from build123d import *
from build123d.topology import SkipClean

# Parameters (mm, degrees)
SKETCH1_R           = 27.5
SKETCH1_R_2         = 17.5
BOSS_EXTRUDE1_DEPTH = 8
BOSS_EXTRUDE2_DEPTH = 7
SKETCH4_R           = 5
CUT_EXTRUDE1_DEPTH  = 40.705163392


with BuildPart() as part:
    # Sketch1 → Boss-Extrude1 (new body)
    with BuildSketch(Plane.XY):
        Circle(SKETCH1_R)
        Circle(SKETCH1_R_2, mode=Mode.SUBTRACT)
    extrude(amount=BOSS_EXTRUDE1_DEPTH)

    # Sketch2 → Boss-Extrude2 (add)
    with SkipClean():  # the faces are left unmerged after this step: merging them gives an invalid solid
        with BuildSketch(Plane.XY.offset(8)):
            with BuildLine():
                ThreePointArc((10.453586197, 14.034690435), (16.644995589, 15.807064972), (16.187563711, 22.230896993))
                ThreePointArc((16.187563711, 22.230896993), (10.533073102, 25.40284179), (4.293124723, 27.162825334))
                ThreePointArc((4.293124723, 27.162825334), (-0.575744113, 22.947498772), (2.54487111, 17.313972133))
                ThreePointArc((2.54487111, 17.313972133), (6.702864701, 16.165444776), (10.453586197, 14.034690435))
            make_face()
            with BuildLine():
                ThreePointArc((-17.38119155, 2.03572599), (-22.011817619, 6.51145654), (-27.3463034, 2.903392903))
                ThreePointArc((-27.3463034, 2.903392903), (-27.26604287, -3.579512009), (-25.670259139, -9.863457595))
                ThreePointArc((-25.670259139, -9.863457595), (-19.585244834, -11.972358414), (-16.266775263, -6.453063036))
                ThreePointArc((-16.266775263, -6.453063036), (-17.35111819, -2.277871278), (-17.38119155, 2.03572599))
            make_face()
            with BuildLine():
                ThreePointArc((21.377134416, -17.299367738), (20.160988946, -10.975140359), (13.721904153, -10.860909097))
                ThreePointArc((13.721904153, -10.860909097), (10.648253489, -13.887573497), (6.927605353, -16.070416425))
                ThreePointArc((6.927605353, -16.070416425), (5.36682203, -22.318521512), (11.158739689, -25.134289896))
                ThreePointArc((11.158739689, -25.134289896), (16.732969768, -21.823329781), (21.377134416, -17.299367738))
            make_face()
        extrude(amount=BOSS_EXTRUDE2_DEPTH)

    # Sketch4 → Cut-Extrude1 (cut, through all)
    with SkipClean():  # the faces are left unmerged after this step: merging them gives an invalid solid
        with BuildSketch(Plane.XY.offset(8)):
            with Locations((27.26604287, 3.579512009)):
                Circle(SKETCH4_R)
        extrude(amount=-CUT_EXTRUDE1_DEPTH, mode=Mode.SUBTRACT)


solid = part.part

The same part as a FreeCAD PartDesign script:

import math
import FreeCAD as App
import Part
import Sketcher

V = App.Vector

doc = App.newDocument("Part")
body = doc.addObject("PartDesign::Body", "Body")

# Sketch on XY plane
sketch1 = body.newObject("Sketcher::SketchObject", "Sketch")
sketch1.AttachmentSupport = (doc.getObject("XY_Plane"), [""])
sketch1.MapMode = "FlatFace"
sketch1.addGeometry([
    Part.Circle(V(0, 0, 0), V(0, 0, 1), 28),
    Part.Circle(V(0, 0, 0), V(0, 0, 1), 18),
], False)
sketch1.addConstraint([
    Sketcher.Constraint("Coincident", 0, 3, -1, 1),
    Sketcher.Constraint("Coincident", 1, 3, -1, 1),
    Sketcher.Constraint("Diameter", 0, 55.0),
    Sketcher.Constraint("Diameter", 1, 35.0),
])
pad1 = body.newObject("PartDesign::Pad", "Pad")
pad1.Profile = sketch1
pad1.Length = 8

# Sketch on XY plane
sketch2 = body.newObject("Sketcher::SketchObject", "Sketch001")
sketch2.AttachmentSupport = (doc.getObject("XY_Plane"), [""])
sketch2.MapMode = "FlatFace"
sketch2.AttachmentOffset = App.Placement(V(0, 0, 8), App.Rotation())
sketch2.addGeometry([
    Part.ArcOfCircle(Part.Circle(V(12, 19, 0), V(0, 0, 1), 5), math.radians(-113), math.radians(43)),  # 0
    Part.ArcOfCircle(Part.Circle(V(0, 0, 0), V(0, 0, 1), 28), math.radians(54), math.radians(81)),  # 1
    Part.ArcOfCircle(Part.Circle(V(4, 22, 0), V(0, 0, 1), 5), math.radians(92), math.radians(248)),  # 2
    Part.ArcOfCircle(Part.Circle(V(0, 0, 0), V(0, 0, 1), 17), math.radians(53), math.radians(82)),  # 3
    Part.ArcOfCircle(Part.Circle(V(-22, 1, 0), V(0, 0, 1), 5), math.radians(7), math.radians(163)),  # 4
    Part.ArcOfCircle(Part.Circle(V(0, 0, 0), V(0, 0, 1), 27), math.radians(174), math.radians(201)),  # 5
    Part.ArcOfCircle(Part.Circle(V(-21, -7, 0), V(0, 0, 1), 5), math.radians(-148), math.radians(8)),  # 6
    Part.ArcOfCircle(Part.Circle(V(0, 0, 0), V(0, 0, 1), 18), math.radians(173), math.radians(202)),  # 7
    Part.ArcOfCircle(Part.Circle(V(17, -15, 0), V(0, 0, 1), 5), math.radians(-28), math.radians(128)),  # 8
    Part.ArcOfCircle(Part.Circle(V(0, 0, 0), V(0, 0, 1), 17), math.radians(-67), math.radians(-38)),  # 9
    Part.ArcOfCircle(Part.Circle(V(10, -20, 0), V(0, 0, 1), 5), math.radians(127), math.radians(283)),  # 10
    Part.ArcOfCircle(Part.Circle(V(0, 0, 0), V(0, 0, 1), 28), math.radians(-66), math.radians(-39)),  # 11
], False)
sketch2.addConstraint([
    Sketcher.Constraint("Coincident", 0, 2, 1, 1),
    Sketcher.Constraint("Coincident", 1, 2, 2, 1),
    Sketcher.Constraint("Coincident", 2, 2, 3, 2),
    Sketcher.Constraint("Coincident", 3, 1, 0, 1),
    Sketcher.Constraint("Coincident", 4, 2, 5, 1),
    Sketcher.Constraint("Coincident", 5, 2, 6, 1),
    Sketcher.Constraint("Coincident", 6, 2, 7, 2),
    Sketcher.Constraint("Coincident", 7, 1, 4, 1),
    Sketcher.Constraint("Coincident", 8, 2, 9, 2),
    Sketcher.Constraint("Coincident", 9, 1, 10, 1),
    Sketcher.Constraint("Coincident", 10, 2, 11, 1),
    Sketcher.Constraint("Coincident", 11, 2, 8, 1),
    Sketcher.Constraint("Coincident", 1, 3, -1, 1),
    Sketcher.Constraint("Coincident", 3, 3, -1, 1),
    Sketcher.Constraint("Coincident", 5, 3, -1, 1),
    Sketcher.Constraint("Coincident", 7, 3, -1, 1),
    Sketcher.Constraint("Coincident", 9, 3, -1, 1),
    Sketcher.Constraint("Coincident", 11, 3, -1, 1),
    Sketcher.Constraint("Equal", 0, 2),
    Sketcher.Constraint("Equal", 2, 4),
    Sketcher.Constraint("Equal", 1, 5),
    Sketcher.Constraint("Equal", 4, 6),
    Sketcher.Constraint("Equal", 3, 7),
    Sketcher.Constraint("Equal", 6, 8),
    Sketcher.Constraint("Equal", 7, 9),
    Sketcher.Constraint("Equal", 8, 10),
    Sketcher.Constraint("Equal", 5, 11),
    Sketcher.Constraint("Radius", 1, 27.5),
    Sketcher.Constraint("Radius", 3, 17.5),
    Sketcher.Constraint("DistanceX", 2, 3, 0, 3, 8.0),
    Sketcher.Constraint("Radius", 0, 5.11128),
    Sketcher.Constraint("DistanceX", 0, 3, 0, 2, 3.7307),
    Sketcher.Constraint("DistanceX", 4, 2, 6, 3, 6.018401),
    Sketcher.Constraint("DistanceY", 5, 2, 4, 3, 11.2829),
    Sketcher.Constraint("DistanceX", 9, 1, 8, 2, 6.794299),
    Sketcher.Constraint("DistanceX", 10, 2, 8, 3, 5.712299),
    Sketcher.Constraint("DistanceY", -1, 1, 2, 3, 22.054169),
    Sketcher.Constraint("DistanceX", 4, 3, -1, 1, 22.455182),
    Sketcher.Constraint("DistanceX", -1, 1, 8, 3, 16.871039),
    Sketcher.Constraint("DistanceY", 8, 3, -1, 1, 14.886842),
    Sketcher.Constraint("DistanceX", -1, 1, 2, 2, 2.544871),
    Sketcher.Constraint("DistanceX", 5, 2, -1, 1, 25.670259),
])
pad2 = body.newObject("PartDesign::Pad", "Pad001")
pad2.Profile = sketch2
pad2.Length = 7

# Sketch on XY plane
sketch3 = body.newObject("Sketcher::SketchObject", "Sketch002")
sketch3.AttachmentSupport = (doc.getObject("XY_Plane"), [""])
sketch3.MapMode = "FlatFace"
sketch3.AttachmentOffset = App.Placement(V(0, 0, 8), App.Rotation())
sketch3.addGeometry(Part.Circle(V(27, 4, 0), V(0, 0, 1), 5), False)
sketch3.addConstraint([
    Sketcher.Constraint("Diameter", 0, 10.0),
    Sketcher.Constraint("DistanceX", -1, 1, 0, 3, 27.266043),
    Sketcher.Constraint("DistanceY", -1, 1, 0, 3, 3.579512),
])
pocket1 = body.newObject("PartDesign::Pocket", "Pocket")
pocket1.Profile = sketch3
pocket1.Type = "ThroughAll"

doc.recompute()
